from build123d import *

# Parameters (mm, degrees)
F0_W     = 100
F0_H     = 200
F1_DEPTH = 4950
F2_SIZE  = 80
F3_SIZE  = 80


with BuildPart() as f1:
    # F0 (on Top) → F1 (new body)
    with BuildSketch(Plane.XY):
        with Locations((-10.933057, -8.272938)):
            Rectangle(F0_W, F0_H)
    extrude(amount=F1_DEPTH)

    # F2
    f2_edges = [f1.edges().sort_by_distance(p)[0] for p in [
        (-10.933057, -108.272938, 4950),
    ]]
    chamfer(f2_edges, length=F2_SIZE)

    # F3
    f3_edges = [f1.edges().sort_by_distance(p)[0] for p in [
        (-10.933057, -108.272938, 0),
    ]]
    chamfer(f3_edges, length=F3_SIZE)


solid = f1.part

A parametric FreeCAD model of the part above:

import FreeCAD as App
import Part
import Sketcher

V = App.Vector


def edges_at(feature, points):
    """Names of the edges that pass closest to the given points."""
    edges = feature.Shape.Edges
    near = lambda p: min(range(len(edges)), key=lambda i: edges[i].distToShape(Part.Vertex(*p))[0])
    return sorted({f"Edge{near(p) + 1}" for p in points})

doc = App.newDocument("Part")
params = doc.addObject("Spreadsheet::Sheet", "Params")
for row, (alias, value) in enumerate([
    ("sketch1_width", "100 mm"),
    ("sketch1_height", "200 mm"),
    ("pad1_length", "4950 mm"),
    ("chamfer_size", "80 mm"),
    ("chamfer2_size", "80 mm"),
], start=1):
    params.set(f"A{row}", alias)
    params.set(f"B{row}", "=" + value)
    params.setAlias(f"B{row}", alias)

body = doc.addObject("PartDesign::Body", "Body")

# Sketch on XY plane
sketch1 = body.newObject("Sketcher::SketchObject", "Sketch")
sketch1.AttachmentSupport = (doc.getObject("XY_Plane"), [""])
sketch1.MapMode = "FlatFace"
sketch1.addGeometry(Part.LineSegment(V(-61, 92, 0), V(-61, -108, 0)), False)
sketch1.addGeometry(Part.LineSegment(V(-61, -108, 0), V(39, -108, 0)), False)
sketch1.addGeometry(Part.LineSegment(V(39, -108, 0), V(39, 92, 0)), False)
sketch1.addGeometry(Part.LineSegment(V(39, 92, 0), V(-61, 92, 0)), False)
sketch1.addConstraint(Sketcher.Constraint("Coincident", 0, 2, 1, 1))
sketch1.addConstraint(Sketcher.Constraint("Coincident", 1, 2, 2, 1))
sketch1.addConstraint(Sketcher.Constraint("Coincident", 2, 2, 3, 1))
sketch1.addConstraint(Sketcher.Constraint("Coincident", 3, 2, 0, 1))
sketch1.addConstraint(Sketcher.Constraint("Vertical", 0))
sketch1.addConstraint(Sketcher.Constraint("Horizontal", 1))
sketch1.addConstraint(Sketcher.Constraint("Vertical", 2))
sketch1.addConstraint(Sketcher.Constraint("Horizontal", 3))
sketch1.addConstraint(Sketcher.Constraint("DistanceX", 1, 1, 1, 2, 100.0))
sketch1.addConstraint(Sketcher.Constraint("DistanceY", 0, 2, 0, 1, 200.0))
sketch1.addConstraint(Sketcher.Constraint("DistanceX", 0, 2, -1, 1, 60.933057))
sketch1.addConstraint(Sketcher.Constraint("DistanceY", 0, 2, -1, 1, 108.272938))
sketch1.setExpression("Constraints[8]", "Params.sketch1_width")
sketch1.setExpression("Constraints[9]", "Params.sketch1_height")
pad1 = body.newObject("PartDesign::Pad", "Pad")
pad1.Profile = sketch1
pad1.setExpression("Length", "Params.pad1_length")
doc.recompute()

chamfer = body.newObject("PartDesign::Chamfer", "Chamfer")
chamfer.Base = (pad1, edges_at(pad1, [(-10.933, -108.273, 4950)]))
chamfer.setExpression("Size", "Params.chamfer_size")
doc.recompute()

chamfer2 = body.newObject("PartDesign::Chamfer", "Chamfer001")
chamfer2.Base = (chamfer, edges_at(chamfer, [(-10.933, -108.273, 0)]))
chamfer2.setExpression("Size", "Params.chamfer2_size")

doc.recompute()
